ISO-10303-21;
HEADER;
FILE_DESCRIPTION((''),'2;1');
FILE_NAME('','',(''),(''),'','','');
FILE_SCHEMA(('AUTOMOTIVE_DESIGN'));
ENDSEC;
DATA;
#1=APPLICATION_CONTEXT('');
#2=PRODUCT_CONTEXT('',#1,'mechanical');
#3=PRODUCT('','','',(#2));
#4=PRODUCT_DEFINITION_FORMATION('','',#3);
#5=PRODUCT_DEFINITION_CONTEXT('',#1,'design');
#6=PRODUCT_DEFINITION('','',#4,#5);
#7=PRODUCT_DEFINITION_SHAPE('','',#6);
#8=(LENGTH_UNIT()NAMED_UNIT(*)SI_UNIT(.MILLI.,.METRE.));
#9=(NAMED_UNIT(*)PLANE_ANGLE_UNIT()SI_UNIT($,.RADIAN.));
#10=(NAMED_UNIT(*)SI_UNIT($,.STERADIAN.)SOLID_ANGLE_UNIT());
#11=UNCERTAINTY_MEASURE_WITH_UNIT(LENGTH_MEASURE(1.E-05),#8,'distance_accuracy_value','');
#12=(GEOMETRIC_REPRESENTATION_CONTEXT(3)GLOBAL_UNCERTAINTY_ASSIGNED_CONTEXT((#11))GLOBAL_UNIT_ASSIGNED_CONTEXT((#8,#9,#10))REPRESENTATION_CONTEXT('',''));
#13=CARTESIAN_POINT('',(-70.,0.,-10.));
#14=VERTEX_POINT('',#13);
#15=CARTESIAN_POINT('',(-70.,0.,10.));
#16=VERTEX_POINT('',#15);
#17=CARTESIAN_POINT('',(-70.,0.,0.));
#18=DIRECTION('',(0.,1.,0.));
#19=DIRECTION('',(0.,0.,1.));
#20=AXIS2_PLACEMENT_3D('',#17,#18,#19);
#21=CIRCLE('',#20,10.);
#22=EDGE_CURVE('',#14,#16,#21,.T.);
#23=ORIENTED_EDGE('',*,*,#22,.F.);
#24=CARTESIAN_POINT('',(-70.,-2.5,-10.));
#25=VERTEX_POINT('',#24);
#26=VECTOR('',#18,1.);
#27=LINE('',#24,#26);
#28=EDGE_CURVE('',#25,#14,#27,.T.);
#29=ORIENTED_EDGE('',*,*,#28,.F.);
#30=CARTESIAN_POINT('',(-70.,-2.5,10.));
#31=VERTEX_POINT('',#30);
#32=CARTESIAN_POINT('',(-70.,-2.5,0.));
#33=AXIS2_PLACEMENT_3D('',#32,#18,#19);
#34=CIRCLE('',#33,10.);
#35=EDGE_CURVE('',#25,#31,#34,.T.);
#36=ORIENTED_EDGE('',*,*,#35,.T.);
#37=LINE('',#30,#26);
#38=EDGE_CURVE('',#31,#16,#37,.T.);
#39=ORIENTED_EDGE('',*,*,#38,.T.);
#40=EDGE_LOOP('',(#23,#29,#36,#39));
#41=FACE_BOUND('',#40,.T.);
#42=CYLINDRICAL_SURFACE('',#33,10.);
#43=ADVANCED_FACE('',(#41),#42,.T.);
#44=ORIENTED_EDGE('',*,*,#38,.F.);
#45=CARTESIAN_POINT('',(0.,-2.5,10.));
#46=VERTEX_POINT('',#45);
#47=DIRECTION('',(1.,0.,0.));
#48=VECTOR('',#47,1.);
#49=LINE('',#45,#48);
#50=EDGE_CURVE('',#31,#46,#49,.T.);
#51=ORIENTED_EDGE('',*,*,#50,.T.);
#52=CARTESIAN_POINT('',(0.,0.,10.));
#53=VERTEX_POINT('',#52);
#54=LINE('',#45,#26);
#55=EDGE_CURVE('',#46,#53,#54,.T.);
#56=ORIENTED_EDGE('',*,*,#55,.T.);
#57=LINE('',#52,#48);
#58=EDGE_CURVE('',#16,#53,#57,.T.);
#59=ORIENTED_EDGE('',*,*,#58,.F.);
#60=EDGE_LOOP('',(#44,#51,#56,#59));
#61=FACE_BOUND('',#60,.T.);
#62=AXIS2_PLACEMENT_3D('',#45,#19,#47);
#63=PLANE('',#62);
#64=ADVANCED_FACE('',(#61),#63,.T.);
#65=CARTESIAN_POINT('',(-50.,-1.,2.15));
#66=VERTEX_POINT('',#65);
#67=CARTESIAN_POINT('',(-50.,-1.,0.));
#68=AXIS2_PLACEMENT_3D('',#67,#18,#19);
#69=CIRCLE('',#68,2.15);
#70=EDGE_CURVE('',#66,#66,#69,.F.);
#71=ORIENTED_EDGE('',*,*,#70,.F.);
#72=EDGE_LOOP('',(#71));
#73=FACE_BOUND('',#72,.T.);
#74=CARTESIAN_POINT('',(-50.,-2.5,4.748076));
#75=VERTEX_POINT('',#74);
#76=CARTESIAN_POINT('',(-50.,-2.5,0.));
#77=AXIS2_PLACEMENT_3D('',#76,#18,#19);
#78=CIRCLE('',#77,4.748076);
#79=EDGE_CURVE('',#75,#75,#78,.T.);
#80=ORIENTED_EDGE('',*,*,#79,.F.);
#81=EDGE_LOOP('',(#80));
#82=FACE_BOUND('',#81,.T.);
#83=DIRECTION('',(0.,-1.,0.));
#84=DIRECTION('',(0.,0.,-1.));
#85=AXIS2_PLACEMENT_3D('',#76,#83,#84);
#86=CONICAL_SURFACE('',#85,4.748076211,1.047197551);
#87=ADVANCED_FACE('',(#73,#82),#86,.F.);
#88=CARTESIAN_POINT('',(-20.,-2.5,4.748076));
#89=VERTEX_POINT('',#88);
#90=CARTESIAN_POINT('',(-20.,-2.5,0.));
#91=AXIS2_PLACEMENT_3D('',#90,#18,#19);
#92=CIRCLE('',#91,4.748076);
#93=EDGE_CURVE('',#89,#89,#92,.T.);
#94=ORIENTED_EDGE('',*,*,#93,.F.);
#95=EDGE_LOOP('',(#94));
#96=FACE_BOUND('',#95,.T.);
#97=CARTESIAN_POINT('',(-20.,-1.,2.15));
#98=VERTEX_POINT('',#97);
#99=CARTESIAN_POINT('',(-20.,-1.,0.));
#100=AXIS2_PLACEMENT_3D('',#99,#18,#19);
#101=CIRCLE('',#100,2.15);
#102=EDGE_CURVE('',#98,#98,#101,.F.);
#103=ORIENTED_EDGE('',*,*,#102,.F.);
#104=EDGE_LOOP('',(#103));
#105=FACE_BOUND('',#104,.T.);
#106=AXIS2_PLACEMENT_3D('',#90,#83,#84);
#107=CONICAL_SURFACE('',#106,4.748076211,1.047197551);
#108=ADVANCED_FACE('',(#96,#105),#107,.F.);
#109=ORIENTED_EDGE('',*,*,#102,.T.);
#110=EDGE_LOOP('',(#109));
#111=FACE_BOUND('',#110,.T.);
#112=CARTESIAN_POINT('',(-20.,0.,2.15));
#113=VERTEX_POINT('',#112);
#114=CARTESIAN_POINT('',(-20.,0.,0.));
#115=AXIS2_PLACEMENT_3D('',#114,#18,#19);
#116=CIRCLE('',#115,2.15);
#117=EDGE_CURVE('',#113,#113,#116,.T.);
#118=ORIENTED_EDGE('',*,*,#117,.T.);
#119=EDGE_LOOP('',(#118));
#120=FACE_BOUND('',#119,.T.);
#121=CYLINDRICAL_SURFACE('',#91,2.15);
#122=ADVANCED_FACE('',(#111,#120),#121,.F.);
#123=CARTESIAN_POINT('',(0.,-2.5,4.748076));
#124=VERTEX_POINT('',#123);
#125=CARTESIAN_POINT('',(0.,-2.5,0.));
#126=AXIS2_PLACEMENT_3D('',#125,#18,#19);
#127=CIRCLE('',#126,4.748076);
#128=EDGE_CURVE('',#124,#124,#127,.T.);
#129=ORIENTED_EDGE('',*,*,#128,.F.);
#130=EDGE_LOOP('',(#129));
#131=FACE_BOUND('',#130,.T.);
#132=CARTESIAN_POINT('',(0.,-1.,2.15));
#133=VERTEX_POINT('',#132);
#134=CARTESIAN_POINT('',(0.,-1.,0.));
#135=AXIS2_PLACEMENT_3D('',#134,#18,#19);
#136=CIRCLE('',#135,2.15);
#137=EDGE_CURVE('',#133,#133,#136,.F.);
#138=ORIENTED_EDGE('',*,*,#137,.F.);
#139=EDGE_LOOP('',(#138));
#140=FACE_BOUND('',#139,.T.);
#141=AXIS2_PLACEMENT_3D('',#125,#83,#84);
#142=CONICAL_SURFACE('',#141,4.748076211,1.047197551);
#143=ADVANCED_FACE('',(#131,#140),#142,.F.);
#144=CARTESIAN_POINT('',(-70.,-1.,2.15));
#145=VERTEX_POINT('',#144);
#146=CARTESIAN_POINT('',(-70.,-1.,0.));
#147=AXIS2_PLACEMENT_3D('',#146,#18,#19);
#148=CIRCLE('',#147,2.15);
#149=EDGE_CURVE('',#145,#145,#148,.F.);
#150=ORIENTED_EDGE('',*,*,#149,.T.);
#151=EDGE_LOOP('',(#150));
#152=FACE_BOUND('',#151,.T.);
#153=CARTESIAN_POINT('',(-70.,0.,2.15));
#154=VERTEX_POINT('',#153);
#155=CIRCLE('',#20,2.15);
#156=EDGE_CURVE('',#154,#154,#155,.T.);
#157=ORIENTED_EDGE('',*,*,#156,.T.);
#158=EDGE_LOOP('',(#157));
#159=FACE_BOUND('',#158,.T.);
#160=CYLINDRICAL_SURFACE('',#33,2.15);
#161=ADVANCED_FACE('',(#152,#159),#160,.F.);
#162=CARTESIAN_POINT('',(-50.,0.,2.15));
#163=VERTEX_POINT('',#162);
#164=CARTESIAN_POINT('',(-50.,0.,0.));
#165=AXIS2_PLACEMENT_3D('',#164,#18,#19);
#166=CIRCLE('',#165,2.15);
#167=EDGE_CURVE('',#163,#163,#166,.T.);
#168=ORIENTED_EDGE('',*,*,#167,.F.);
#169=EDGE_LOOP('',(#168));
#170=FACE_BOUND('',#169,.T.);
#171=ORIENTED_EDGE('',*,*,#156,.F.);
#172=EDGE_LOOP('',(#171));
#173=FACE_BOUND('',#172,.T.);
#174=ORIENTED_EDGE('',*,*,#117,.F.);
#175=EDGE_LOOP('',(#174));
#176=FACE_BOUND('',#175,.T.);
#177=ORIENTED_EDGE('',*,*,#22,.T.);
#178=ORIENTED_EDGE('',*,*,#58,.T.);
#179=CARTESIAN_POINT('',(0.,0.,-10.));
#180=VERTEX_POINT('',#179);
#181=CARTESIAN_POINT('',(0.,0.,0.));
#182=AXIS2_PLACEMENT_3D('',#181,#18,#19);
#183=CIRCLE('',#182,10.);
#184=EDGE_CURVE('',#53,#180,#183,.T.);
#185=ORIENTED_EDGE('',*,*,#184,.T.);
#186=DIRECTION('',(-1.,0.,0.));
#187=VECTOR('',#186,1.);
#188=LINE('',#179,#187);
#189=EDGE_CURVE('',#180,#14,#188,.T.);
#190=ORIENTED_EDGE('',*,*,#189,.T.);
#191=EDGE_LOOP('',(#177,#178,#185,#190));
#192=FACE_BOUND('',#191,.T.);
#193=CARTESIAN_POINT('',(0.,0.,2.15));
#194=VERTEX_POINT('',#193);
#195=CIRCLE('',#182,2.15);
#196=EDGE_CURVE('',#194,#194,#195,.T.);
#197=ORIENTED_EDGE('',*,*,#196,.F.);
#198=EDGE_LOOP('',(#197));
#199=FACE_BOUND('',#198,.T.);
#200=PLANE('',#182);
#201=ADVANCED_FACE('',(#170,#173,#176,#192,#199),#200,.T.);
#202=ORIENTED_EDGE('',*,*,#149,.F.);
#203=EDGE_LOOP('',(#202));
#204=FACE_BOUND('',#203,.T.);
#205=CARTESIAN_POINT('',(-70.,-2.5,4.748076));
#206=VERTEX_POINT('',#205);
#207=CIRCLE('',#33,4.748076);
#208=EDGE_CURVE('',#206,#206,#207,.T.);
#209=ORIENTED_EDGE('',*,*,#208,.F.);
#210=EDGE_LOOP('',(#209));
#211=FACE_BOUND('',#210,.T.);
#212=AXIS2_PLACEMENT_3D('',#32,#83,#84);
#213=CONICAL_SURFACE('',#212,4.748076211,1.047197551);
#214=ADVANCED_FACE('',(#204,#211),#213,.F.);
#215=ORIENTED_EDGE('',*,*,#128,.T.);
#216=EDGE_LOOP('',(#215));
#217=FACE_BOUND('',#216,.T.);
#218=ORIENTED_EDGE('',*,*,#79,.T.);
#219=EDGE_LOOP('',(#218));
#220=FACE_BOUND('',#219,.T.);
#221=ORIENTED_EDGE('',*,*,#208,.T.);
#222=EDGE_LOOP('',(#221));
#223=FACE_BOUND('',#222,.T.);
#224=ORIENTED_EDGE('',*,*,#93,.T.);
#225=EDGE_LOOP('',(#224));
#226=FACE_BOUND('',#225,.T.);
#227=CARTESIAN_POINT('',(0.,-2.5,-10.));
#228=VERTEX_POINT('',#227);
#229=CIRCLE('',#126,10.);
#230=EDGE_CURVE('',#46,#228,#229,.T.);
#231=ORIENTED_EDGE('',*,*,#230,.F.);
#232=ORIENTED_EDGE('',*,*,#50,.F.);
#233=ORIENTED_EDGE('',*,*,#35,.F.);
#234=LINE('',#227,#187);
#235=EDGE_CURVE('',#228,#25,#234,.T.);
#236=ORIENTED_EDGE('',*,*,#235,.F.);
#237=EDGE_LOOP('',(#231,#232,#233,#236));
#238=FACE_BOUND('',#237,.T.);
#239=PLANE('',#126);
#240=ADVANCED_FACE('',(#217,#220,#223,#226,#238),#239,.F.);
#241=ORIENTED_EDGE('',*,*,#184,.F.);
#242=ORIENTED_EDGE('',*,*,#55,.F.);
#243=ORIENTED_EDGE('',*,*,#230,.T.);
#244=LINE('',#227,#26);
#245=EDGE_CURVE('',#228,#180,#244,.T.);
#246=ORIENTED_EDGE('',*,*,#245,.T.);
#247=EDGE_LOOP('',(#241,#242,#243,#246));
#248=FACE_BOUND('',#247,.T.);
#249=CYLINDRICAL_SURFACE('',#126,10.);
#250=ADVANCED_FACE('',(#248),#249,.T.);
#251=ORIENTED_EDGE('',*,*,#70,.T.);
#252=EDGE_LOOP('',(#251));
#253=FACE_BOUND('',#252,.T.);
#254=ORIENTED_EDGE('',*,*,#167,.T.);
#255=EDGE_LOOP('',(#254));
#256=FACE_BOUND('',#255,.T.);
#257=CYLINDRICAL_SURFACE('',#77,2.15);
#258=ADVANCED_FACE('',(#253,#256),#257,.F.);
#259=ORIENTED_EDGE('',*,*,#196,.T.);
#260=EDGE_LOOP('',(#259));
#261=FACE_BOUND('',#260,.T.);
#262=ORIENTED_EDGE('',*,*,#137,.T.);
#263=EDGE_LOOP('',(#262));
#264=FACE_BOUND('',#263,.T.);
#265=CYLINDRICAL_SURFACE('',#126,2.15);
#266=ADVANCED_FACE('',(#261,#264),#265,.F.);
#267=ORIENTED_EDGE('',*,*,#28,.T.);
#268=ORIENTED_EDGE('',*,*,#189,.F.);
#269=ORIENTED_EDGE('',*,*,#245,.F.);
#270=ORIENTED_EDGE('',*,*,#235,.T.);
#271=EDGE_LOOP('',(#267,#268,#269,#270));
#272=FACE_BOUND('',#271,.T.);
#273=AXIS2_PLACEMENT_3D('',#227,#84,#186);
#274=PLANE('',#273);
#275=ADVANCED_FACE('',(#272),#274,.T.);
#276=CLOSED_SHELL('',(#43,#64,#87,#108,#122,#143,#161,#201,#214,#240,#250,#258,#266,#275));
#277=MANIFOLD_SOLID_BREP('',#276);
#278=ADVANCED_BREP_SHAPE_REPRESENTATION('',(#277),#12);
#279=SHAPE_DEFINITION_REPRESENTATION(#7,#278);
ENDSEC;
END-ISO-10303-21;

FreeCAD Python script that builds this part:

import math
import FreeCAD as App
import Part
import Sketcher
Q = App.Units.Quantity


def edges_at(feature, points):
    """Names of the edges that pass closest to the given points."""
    edges = feature.Shape.Edges
    near = lambda p: min(range(len(edges)), key=lambda i: edges[i].distToShape(Part.Vertex(*p))[0])
    return sorted({f"Edge{near(p) + 1}" for p in points})

doc = App.newDocument("Part")
body = doc.addObject("PartDesign::Body", "Body")

# Sketch on XZ plane
sketch1 = body.newObject("Sketcher::SketchObject", "Sketch")
sketch1.AttachmentSupport = (doc.getObject("XZ_Plane"), [""])
sketch1.MapMode = "FlatFace"
sketch1.addGeometry(Part.LineSegment(App.Vector(-70, 10, 0), App.Vector(0, 10, 0)), False)
sketch1.addGeometry(Part.ArcOfCircle(Part.Circle(App.Vector(0, 0, 0), App.Vector(0, 0, 1), 10), math.radians(-90), math.radians(90)), False)
sketch1.addGeometry(Part.LineSegment(App.Vector(0, -10, 0), App.Vector(-70, -10, 0)), False)
sketch1.addGeometry(Part.ArcOfCircle(Part.Circle(App.Vector(-70, 0, 0), App.Vector(0, 0, 1), 10), math.radians(90), math.radians(270)), False)
sketch1.addGeometry(Part.Circle(App.Vector(0, 0, 0), App.Vector(0, 0, 1), 2.15), False)
sketch1.addGeometry(Part.Circle(App.Vector(-20, 0, 0), App.Vector(0, 0, 1), 2.15), False)
sketch1.addGeometry(Part.Circle(App.Vector(-50, 0, 0), App.Vector(0, 0, 1), 2.15), False)
sketch1.addGeometry(Part.Circle(App.Vector(-70, 0, 0), App.Vector(0, 0, 1), 2.15), False)
sketch1.addConstraint(Sketcher.Constraint("Tangent", 0, 2, 1, 2))
sketch1.addConstraint(Sketcher.Constraint("Tangent", 1, 1, 2, 1))
sketch1.addConstraint(Sketcher.Constraint("Tangent", 2, 2, 3, 2))
sketch1.addConstraint(Sketcher.Constraint("Tangent", 3, 1, 0, 1))
sketch1.addConstraint(Sketcher.Constraint("Horizontal", 0))
sketch1.addConstraint(Sketcher.Constraint("Horizontal", 2))
sketch1.addConstraint(Sketcher.Constraint("Coincident", 1, 3, -1, 1))
sketch1.addConstraint(Sketcher.Constraint("Coincident", 4, 3, -1, 1))
sketch1.addConstraint(Sketcher.Constraint("Coincident", 7, 3, 3, 3))
sketch1.addConstraint(Sketcher.Constraint("Equal", 4, 5))
sketch1.addConstraint(Sketcher.Constraint("Equal", 5, 6))
sketch1.addConstraint(Sketcher.Constraint("Equal", 6, 7))
sketch1.addConstraint(Sketcher.Constraint("PointOnObject", 5, 3, -1))
sketch1.addConstraint(Sketcher.Constraint("PointOnObject", 6, 3, -1))
sketch1.addConstraint(Sketcher.Constraint("Radius", 1, Q("10 mm")))
sketch1.addConstraint(Sketcher.Constraint("Diameter", 4, Q("4.3 mm")))
sketch1.addConstraint(Sketcher.Constraint("DistanceX", 0, 1, 0, 2, Q("70 mm")))
sketch1.addConstraint(Sketcher.Constraint("DistanceX", 5, 3, -1, 1, Q("20 mm")))
sketch1.addConstraint(Sketcher.Constraint("DistanceX", 6, 3, -1, 1, Q("50 mm")))
pad1 = body.newObject("PartDesign::Pad", "Pad")
pad1.Profile = sketch1
pad1.Length = 2.5
doc.recompute()

chamfer = body.newObject("PartDesign::Chamfer", "Chamfer")
chamfer.Base = (pad1, edges_at(pad1, [(-2.15, -2.5, 0)]))
chamfer.ChamferType = "Two distances"
chamfer.Size = 1.5
chamfer.Size2 = 2.598076
doc.recompute()

chamfer2 = body.newObject("PartDesign::Chamfer", "Chamfer001")
chamfer2.Base = (chamfer, edges_at(chamfer, [(-72.15, -2.5, 0)]))
chamfer2.ChamferType = "Two distances"
chamfer2.Size = 1.5
chamfer2.Size2 = 2.598076
chamfer2.FlipDirection = True
doc.recompute()

chamfer3 = body.newObject("PartDesign::Chamfer", "Chamfer002")
chamfer3.Base = (chamfer2, edges_at(chamfer2, [(-22.15, -2.5, 0)]))
chamfer3.ChamferType = "Two distances"
chamfer3.Size = 1.5
chamfer3.Size2 = 2.598076
chamfer3.FlipDirection = True
doc.recompute()

chamfer4 = body.newObject("PartDesign::Chamfer", "Chamfer003")
chamfer4.Base = (chamfer3, edges_at(chamfer3, [(-52.15, -2.5, 0)]))
chamfer4.ChamferType = "Two distances"
chamfer4.Size = 1.5
chamfer4.Size2 = 2.598076
chamfer4.FlipDirection = True

doc.recompute()
